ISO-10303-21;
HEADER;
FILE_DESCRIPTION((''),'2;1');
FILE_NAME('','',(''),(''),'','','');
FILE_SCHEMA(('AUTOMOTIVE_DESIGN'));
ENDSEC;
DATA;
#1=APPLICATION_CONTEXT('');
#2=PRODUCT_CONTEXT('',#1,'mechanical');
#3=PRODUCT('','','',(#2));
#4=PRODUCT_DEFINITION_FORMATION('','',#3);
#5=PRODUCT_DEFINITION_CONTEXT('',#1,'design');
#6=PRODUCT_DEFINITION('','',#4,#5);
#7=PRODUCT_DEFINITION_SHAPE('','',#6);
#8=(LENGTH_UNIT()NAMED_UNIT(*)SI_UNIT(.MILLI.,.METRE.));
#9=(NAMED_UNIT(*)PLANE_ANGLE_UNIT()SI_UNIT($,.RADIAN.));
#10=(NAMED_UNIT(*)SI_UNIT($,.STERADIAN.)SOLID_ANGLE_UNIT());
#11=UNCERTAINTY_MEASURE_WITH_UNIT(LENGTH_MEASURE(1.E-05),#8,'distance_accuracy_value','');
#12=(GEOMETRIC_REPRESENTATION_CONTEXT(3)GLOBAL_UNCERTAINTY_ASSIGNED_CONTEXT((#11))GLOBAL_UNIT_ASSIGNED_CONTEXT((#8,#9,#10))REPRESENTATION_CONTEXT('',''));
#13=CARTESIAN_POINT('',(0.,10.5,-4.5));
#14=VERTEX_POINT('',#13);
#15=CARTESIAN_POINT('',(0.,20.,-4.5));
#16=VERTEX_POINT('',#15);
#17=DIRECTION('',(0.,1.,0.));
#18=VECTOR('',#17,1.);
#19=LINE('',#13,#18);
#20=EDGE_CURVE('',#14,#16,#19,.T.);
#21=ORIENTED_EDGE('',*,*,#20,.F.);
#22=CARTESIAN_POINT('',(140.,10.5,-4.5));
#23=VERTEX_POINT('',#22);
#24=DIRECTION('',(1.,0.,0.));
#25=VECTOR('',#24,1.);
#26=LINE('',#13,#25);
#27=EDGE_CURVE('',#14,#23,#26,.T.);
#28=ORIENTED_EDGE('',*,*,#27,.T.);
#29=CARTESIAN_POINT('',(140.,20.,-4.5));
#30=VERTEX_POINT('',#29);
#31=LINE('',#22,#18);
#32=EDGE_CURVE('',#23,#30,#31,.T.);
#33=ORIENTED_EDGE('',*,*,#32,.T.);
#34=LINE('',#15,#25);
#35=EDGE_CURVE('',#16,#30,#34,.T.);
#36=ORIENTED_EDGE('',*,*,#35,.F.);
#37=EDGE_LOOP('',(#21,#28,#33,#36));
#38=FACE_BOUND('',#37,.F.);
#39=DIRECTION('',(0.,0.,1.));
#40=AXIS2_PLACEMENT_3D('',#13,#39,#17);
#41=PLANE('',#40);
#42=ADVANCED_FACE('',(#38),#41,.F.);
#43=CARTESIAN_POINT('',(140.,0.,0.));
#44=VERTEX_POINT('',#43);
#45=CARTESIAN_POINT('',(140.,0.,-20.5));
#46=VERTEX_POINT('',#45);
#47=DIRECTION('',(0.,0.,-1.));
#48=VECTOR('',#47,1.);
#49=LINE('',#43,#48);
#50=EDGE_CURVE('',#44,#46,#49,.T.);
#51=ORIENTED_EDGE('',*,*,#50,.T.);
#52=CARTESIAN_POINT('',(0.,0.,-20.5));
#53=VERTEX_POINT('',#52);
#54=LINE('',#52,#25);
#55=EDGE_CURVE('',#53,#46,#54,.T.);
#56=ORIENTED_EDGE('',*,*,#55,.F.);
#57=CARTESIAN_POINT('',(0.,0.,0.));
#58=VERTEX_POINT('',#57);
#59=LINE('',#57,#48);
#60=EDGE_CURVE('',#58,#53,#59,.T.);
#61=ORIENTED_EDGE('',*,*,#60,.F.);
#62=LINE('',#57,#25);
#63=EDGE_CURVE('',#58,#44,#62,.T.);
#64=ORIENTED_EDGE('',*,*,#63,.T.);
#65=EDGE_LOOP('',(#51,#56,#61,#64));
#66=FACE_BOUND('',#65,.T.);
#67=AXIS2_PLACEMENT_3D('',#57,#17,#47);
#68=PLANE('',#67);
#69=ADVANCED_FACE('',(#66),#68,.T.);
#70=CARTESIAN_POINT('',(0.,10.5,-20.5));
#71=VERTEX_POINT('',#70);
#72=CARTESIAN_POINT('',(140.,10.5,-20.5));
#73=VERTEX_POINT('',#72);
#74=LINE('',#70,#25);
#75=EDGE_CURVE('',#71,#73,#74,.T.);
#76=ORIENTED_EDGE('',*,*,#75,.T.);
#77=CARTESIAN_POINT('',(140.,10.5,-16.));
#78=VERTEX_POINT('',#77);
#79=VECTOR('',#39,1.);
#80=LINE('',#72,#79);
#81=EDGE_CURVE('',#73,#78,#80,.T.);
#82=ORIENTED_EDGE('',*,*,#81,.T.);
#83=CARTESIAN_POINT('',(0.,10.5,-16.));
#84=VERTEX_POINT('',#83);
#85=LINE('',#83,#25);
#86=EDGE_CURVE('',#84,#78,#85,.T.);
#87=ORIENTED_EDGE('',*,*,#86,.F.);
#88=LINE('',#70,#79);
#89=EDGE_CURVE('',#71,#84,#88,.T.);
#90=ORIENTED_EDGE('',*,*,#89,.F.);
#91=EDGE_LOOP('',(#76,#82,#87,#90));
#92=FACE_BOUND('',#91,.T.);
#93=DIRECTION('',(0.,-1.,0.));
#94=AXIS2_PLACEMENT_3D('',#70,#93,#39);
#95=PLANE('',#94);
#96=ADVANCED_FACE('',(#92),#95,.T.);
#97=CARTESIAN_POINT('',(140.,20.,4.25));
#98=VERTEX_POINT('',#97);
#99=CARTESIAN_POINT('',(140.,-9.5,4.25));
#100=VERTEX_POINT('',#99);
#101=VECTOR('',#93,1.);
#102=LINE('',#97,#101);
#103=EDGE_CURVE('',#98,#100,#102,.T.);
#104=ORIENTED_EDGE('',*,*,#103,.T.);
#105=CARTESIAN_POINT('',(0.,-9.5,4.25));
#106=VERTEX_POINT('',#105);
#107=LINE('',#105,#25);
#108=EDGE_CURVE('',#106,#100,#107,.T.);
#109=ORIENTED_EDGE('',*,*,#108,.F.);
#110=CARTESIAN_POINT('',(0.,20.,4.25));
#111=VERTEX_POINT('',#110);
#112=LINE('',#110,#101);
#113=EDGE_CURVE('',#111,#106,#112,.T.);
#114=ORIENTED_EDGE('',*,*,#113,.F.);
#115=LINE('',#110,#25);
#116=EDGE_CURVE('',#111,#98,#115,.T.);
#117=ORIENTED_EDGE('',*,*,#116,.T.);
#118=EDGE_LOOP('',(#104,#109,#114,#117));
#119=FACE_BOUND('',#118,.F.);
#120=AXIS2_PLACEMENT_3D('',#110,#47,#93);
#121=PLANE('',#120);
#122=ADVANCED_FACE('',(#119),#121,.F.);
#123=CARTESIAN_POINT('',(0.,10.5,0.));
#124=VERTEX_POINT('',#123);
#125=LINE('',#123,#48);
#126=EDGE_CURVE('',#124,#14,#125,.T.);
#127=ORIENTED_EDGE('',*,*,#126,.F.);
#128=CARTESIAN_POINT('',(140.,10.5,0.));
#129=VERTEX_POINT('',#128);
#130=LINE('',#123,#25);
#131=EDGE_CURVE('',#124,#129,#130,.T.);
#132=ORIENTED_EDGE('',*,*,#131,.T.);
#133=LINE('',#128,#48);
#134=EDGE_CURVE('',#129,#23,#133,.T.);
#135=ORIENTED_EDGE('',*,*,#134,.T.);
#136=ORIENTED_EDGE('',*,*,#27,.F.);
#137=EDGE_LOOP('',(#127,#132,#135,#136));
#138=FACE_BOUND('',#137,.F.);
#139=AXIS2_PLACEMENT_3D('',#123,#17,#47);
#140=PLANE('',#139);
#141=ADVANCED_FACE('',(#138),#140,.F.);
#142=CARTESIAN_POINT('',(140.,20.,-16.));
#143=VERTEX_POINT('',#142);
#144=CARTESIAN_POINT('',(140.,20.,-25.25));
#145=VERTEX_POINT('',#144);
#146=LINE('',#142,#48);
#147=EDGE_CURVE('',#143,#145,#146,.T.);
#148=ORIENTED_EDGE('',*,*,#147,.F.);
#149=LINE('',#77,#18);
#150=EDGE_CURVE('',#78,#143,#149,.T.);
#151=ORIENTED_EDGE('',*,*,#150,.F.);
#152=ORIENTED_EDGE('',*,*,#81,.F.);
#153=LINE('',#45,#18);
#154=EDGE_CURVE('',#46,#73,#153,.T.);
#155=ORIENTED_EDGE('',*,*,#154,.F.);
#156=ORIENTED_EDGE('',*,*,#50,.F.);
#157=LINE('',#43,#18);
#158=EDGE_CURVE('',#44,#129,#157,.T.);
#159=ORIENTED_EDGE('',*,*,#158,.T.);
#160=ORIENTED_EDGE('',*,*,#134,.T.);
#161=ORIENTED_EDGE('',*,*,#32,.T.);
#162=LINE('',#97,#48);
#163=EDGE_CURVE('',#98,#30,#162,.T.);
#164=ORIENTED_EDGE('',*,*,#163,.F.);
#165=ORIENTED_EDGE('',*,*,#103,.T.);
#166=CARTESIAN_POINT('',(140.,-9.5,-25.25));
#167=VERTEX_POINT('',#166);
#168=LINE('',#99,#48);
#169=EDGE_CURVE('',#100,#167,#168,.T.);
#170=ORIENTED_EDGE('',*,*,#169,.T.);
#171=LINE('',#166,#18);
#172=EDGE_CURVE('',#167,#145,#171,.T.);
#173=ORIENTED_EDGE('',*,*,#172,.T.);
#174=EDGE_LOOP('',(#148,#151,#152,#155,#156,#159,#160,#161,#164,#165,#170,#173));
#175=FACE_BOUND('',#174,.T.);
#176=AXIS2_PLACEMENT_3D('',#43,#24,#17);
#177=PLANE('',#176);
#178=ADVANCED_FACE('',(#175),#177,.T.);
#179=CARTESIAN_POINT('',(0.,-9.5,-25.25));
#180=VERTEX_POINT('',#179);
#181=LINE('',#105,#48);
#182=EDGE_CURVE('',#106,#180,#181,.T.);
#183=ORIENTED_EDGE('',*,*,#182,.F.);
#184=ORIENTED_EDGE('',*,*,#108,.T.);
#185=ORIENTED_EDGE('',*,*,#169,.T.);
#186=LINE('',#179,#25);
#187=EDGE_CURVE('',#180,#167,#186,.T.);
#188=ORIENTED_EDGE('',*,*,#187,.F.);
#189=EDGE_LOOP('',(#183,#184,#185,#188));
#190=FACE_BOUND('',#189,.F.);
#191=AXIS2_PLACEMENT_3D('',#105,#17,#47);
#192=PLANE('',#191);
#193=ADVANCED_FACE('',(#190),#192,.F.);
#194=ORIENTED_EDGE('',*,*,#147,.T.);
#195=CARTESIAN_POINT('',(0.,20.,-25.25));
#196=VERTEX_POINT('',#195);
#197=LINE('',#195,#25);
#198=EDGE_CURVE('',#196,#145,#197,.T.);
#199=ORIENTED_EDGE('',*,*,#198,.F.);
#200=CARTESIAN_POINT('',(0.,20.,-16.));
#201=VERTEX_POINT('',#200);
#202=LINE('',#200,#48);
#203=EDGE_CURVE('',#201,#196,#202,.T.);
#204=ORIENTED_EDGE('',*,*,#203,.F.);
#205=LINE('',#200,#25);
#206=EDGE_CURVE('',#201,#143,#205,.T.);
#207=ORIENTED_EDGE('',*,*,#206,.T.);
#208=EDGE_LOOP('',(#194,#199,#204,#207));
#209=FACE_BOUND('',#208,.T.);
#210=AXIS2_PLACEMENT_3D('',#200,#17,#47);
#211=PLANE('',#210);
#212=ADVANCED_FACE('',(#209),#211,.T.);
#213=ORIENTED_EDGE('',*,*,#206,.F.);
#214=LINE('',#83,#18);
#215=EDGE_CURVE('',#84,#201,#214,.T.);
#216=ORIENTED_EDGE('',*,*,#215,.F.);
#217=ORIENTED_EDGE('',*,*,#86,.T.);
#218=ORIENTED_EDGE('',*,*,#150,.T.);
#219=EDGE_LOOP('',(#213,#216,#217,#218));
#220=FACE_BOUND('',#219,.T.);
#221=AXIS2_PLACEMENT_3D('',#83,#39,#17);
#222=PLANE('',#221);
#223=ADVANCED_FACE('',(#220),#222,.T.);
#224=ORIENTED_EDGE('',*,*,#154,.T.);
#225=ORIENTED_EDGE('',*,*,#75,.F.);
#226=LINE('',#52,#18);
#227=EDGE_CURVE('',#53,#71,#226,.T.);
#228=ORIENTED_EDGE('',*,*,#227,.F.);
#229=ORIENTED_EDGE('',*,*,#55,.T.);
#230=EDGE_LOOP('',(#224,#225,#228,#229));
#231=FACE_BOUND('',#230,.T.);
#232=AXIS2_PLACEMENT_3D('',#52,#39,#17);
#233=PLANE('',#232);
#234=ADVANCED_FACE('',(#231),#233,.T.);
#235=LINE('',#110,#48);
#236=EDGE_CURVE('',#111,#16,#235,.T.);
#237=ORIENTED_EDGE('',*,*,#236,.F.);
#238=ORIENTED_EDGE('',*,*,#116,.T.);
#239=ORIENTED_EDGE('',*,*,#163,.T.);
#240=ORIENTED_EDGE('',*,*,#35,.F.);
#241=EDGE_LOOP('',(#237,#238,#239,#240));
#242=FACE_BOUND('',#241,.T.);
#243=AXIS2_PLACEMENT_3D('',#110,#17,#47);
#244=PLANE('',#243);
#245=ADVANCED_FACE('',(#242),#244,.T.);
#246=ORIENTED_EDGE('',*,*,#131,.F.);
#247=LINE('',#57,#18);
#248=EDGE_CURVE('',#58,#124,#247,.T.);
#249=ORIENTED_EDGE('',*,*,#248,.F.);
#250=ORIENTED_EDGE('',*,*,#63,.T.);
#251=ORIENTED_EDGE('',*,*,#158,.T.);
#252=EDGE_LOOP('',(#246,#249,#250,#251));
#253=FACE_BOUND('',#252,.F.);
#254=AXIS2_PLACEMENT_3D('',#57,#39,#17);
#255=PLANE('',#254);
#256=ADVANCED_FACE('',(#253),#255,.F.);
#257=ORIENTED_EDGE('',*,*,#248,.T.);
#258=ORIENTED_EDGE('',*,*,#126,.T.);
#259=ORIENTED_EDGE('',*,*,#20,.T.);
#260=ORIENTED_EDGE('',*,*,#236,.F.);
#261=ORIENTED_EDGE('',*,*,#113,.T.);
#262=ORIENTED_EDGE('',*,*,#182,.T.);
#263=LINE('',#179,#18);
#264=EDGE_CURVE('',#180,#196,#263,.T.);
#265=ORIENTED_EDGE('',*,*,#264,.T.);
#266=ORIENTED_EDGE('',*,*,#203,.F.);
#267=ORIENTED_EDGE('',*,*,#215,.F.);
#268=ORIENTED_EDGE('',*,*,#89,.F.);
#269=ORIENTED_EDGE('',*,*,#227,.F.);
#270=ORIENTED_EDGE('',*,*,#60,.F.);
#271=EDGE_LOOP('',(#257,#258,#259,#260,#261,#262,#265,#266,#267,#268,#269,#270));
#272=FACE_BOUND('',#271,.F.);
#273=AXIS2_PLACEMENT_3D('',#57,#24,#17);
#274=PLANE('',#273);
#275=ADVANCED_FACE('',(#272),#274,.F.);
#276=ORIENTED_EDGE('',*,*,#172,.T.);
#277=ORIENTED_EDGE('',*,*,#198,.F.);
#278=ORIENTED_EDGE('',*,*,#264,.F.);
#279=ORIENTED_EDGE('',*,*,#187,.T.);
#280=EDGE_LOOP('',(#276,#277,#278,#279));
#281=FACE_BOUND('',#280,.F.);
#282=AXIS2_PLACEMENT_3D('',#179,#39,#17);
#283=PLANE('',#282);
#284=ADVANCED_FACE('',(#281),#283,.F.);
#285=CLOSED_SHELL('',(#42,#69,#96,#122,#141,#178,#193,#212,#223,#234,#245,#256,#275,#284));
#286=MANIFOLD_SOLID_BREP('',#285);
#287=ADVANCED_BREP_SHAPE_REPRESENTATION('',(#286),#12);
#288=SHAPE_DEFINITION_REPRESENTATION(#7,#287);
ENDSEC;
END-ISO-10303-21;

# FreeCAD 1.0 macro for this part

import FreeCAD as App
import Part
import Sketcher
from FreeCAD import Vector
Q = App.Units.Quantity


def add_polygon(sketch, points):
    """Adds a closed chain of lines whose ends are joined by coincident constraints."""
    first, n = sketch.GeometryCount, len(points)
    for a, b in zip(points, points[1:] + points[:1]):
        sketch.addGeometry(Part.LineSegment(App.Vector(*a, 0), App.Vector(*b, 0)), False)
    for i in range(n):
        sketch.addConstraint(Sketcher.Constraint("Coincident", first + i, 2, first + (i + 1) % n, 1))

doc = App.newDocument("Part")
params = doc.addObject("Spreadsheet::Sheet", "Params")
for row, (alias, value) in enumerate([
    ("sketch1_width", "10.5 mm"),
    ("sketch1_width2", "9.5 mm"),
    ("sketch1_width3", "29.5 mm"),
    ("sketch1_height", "20.5 mm"),
    ("sketch1_height2", "4.5 mm"),
    ("pad1_length", "140 mm"),
], start=1):
    params.set(f"A{row}", alias)
    params.set(f"B{row}", "=" + value)
    params.setAlias(f"B{row}", alias)

body = doc.addObject("PartDesign::Body", "Body")

sketch1 = body.newObject("Sketcher::SketchObject", "Sketch")
sketch1.AttachmentSupport = (doc.getObject("YZ_Plane"), [""])
sketch1.MapMode = "FlatFace"
add_polygon(sketch1, [(0, -20.5), (0, 0), (10.5, 0), (10.5, -4.5), (20, -4.5), (20, 4.2), (-9.5, 4.2), (-9.5, -25.2), (20, -25.2), (20, -16), (10.5, -16), (10.5, -20.5)])
sketch1.addConstraint([
    Sketcher.Constraint("Vertical", 0),
    Sketcher.Constraint("Horizontal", 1),
    Sketcher.Constraint("Vertical", 2),
    Sketcher.Constraint("Horizontal", 3),
    Sketcher.Constraint("Vertical", 4),
    Sketcher.Constraint("Horizontal", 5),
    Sketcher.Constraint("Vertical", 6),
    Sketcher.Constraint("Horizontal", 7),
    Sketcher.Constraint("Vertical", 8),
    Sketcher.Constraint("Horizontal", 9),
    Sketcher.Constraint("Vertical", 10),
    Sketcher.Constraint("Horizontal", 11),
    Sketcher.Constraint("Coincident", 0, 2, -1, 1),
    Sketcher.Constraint("Vertical", 4, 2, 7, 2),
    Sketcher.Constraint("Vertical", 2, 2, 9, 2),
    Sketcher.Constraint("Equal", 7, 6),
    Sketcher.Constraint("Equal", 2, 10),
    Sketcher.Constraint("DistanceX", 1, 1, 1, 2, Q("10.5 mm")),
    Sketcher.Constraint("DistanceX", 3, 1, 3, 2, Q("9.5 mm")),
    Sketcher.Constraint("DistanceX", 5, 2, 5, 1, Q("29.5 mm")),
    Sketcher.Constraint("DistanceY", 0, 1, 0, 2, Q("20.5 mm")),
    Sketcher.Constraint("DistanceY", 2, 2, 2, 1, Q("4.5 mm")),
    Sketcher.Constraint("DistanceY", 4, 1, 4, 2, Q("8.75 mm")),
])
sketch1.setExpression("Constraints[29]", "Params.sketch1_width")
sketch1.setExpression("Constraints[30]", "Params.sketch1_width2")
sketch1.setExpression("Constraints[31]", "Params.sketch1_width3")
sketch1.setExpression("Constraints[32]", "Params.sketch1_height")
sketch1.setExpression("Constraints[33]", "Params.sketch1_height2")
pad1 = body.newObject("PartDesign::Pad", "Pad")
pad1.Profile = sketch1
pad1.setExpression("Length", "Params.pad1_length")

doc.recompute()
